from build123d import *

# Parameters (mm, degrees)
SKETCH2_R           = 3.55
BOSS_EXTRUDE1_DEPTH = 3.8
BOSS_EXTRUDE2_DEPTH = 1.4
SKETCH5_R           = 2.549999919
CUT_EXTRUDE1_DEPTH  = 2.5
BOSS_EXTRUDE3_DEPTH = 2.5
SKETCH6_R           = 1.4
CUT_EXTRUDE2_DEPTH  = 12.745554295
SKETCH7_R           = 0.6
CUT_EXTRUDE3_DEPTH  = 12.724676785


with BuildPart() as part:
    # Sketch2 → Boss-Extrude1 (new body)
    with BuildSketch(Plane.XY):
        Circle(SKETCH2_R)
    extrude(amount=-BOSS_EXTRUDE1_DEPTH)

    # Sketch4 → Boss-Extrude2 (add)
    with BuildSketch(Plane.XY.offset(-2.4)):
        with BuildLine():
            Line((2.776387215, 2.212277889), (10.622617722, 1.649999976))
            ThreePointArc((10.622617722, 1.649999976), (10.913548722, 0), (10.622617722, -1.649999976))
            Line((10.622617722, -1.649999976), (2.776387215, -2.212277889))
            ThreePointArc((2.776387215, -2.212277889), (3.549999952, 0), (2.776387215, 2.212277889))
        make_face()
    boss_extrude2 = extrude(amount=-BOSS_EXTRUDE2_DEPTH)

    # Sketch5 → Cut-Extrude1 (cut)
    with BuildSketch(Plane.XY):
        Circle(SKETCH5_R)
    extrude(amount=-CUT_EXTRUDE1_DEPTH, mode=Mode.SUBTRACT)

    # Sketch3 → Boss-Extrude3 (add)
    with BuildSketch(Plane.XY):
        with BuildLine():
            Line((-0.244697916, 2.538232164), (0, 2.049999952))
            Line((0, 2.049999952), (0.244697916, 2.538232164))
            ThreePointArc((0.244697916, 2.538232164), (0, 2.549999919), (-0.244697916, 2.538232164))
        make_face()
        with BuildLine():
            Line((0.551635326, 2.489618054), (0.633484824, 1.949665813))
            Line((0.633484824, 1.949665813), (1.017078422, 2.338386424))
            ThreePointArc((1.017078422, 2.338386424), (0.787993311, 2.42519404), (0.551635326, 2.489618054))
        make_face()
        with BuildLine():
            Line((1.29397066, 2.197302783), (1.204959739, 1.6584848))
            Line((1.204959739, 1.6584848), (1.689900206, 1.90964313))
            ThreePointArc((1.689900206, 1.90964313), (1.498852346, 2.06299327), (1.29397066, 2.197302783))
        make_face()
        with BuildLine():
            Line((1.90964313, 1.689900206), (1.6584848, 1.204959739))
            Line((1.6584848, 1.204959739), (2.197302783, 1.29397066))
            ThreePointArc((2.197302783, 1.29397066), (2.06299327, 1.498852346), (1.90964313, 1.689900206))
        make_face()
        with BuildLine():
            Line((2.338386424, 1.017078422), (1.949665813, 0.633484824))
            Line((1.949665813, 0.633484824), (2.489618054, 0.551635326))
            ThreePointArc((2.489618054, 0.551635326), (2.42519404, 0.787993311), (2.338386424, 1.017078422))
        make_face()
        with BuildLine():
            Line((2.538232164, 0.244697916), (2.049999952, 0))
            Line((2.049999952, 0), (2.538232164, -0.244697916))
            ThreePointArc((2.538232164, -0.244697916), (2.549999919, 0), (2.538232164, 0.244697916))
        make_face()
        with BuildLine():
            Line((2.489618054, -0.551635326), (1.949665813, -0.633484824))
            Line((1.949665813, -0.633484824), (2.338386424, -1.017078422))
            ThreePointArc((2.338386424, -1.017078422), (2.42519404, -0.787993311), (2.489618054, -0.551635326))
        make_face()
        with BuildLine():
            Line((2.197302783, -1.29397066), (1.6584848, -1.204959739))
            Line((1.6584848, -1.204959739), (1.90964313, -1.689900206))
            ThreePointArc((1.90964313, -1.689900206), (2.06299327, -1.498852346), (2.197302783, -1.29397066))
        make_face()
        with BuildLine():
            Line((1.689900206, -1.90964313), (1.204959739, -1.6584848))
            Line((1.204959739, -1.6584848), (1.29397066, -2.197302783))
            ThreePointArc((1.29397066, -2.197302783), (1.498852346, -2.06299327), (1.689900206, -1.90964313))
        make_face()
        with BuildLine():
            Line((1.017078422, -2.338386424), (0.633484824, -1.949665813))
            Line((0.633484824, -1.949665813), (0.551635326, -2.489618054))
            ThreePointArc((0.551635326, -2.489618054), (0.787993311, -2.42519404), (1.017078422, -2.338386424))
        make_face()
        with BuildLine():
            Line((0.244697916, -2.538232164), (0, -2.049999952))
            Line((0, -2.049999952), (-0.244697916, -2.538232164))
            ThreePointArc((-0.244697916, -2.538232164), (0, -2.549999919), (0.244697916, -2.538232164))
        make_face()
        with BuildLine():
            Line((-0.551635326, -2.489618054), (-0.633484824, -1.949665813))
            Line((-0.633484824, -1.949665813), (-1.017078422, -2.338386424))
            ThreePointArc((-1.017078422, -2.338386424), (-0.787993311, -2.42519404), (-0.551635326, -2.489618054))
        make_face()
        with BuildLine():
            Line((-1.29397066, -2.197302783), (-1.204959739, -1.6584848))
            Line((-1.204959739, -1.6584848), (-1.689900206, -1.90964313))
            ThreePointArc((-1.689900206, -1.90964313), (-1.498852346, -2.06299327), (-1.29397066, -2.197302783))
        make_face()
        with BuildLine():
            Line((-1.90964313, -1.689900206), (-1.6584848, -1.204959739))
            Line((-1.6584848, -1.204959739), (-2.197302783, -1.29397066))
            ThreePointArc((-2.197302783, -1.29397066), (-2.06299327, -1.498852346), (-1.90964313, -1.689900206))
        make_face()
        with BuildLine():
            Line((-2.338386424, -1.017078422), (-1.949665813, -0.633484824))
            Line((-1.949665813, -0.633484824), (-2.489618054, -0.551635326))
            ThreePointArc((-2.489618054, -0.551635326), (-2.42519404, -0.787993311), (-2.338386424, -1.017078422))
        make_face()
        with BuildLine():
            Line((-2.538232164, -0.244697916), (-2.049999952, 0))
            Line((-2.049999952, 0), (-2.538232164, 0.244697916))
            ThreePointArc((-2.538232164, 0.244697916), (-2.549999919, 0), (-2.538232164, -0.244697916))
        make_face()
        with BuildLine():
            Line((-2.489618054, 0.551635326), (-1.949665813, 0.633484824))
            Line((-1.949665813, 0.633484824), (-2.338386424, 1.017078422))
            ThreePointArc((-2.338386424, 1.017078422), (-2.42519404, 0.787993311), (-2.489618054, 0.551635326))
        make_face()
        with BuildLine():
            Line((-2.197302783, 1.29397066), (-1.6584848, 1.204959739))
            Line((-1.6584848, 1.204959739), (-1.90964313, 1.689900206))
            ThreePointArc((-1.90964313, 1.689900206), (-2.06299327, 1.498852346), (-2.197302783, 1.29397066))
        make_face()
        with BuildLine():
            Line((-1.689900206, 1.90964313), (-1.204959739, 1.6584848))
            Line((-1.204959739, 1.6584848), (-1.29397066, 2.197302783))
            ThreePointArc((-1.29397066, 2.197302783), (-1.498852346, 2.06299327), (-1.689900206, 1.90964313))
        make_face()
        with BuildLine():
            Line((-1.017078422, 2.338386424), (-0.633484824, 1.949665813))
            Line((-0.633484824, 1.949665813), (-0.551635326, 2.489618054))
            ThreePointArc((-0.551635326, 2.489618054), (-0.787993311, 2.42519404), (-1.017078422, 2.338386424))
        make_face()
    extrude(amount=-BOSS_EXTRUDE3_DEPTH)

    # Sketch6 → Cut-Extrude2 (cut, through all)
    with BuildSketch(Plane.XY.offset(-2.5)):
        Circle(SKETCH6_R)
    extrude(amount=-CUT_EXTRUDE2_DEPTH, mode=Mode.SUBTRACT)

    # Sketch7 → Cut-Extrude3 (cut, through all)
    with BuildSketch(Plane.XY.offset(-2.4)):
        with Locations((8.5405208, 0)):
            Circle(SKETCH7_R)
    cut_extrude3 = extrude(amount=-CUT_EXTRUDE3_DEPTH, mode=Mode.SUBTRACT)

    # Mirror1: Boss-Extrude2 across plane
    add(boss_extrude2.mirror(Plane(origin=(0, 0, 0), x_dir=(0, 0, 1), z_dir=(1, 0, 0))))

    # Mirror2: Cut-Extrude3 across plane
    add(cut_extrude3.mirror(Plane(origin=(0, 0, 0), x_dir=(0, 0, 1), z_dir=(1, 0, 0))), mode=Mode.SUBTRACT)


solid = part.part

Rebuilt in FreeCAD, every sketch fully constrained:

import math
import FreeCAD as App
import Part
import Sketcher

V = App.Vector

doc = App.newDocument("Part")
body = doc.addObject("PartDesign::Body", "Body")

# Sketch on XY plane
sketch1 = body.newObject("Sketcher::SketchObject", "Sketch")
sketch1.AttachmentSupport = (doc.getObject("XY_Plane"), [""])
sketch1.MapMode = "FlatFace"
sketch1.addGeometry(Part.Circle(V(0, 0, 0), V(0, 0, 1), 3.5), False)
sketch1.addConstraint([
    Sketcher.Constraint("Coincident", 0, 3, -1, 1),
    Sketcher.Constraint("Diameter", 0, 7.1),
])
pad1 = body.newObject("PartDesign::Pad", "Pad")
pad1.Profile = sketch1
pad1.Length = 3.8
pad1.Reversed = True

# Sketch on XY plane
sketch2 = body.newObject("Sketcher::SketchObject", "Sketch001")
sketch2.AttachmentSupport = (doc.getObject("XY_Plane"), [""])
sketch2.MapMode = "FlatFace"
sketch2.AttachmentOffset = App.Placement(V(0, 0, -2.4), App.Rotation())
sketch2.addGeometry([
    Part.LineSegment(V(10.6, 1.6, 0), V(2.8, 2.2, 0)),
    Part.ArcOfCircle(Part.Circle(V(0, 0, 0), V(0, 0, 1), 3.5), math.radians(-39), math.radians(39)),
    Part.LineSegment(V(2.8, -2.2, 0), V(10.6, -1.6, 0)),
    Part.ArcOfCircle(Part.Circle(V(6.1, 0, 0), V(0, 0, 1), 4.8), math.radians(-20), math.radians(20)),
], False)
sketch2.addConstraint([
    Sketcher.Constraint("Coincident", 0, 2, 1, 2),
    Sketcher.Constraint("Coincident", 1, 1, 2, 1),
    Sketcher.Constraint("Coincident", 2, 2, 3, 1),
    Sketcher.Constraint("Coincident", 3, 2, 0, 1),
    Sketcher.Constraint("Coincident", 1, 3, -1, 1),
    Sketcher.Constraint("Symmetric", 2, 2, 3, 2, -1),
    Sketcher.Constraint("Vertical", 0, 2, 1, 1),
    Sketcher.Constraint("Radius", 1, 3.55),
    Sketcher.Constraint("DistanceY", 2, 2, 3, 2, 3.3),
    Sketcher.Constraint("Radius", 3, 4.82441),
    Sketcher.Constraint("Distance", 0, 7.866352),
    Sketcher.Constraint("DistanceX", -1, 1, 3, 3, 6.089139),
])
pad2 = body.newObject("PartDesign::Pad", "Pad001")
pad2.Profile = sketch2
pad2.Length = 1.4
pad2.Reversed = True

# Sketch on XY plane
sketch3 = body.newObject("Sketcher::SketchObject", "Sketch002")
sketch3.AttachmentSupport = (doc.getObject("XY_Plane"), [""])
sketch3.MapMode = "FlatFace"
sketch3.addGeometry(Part.Circle(V(0, 0, 0), V(0, 0, 1), 2.5), False)
sketch3.addConstraint([
    Sketcher.Constraint("Coincident", 0, 3, -1, 1),
    Sketcher.Constraint("Diameter", 0, 5.1),
])
pocket1 = body.newObject("PartDesign::Pocket", "Pocket")
pocket1.Profile = sketch3
pocket1.Length = 2.5

# Sketch on XY plane
sketch4 = body.newObject("Sketcher::SketchObject", "Sketch003")
sketch4.AttachmentSupport = (doc.getObject("XY_Plane"), [""])
sketch4.MapMode = "FlatFace"
sketch4.addGeometry([
    Part.LineSegment(V(-0.24, 2.54, 0), V(0, 2.05, 0)),  # 0
    Part.LineSegment(V(0, 2.05, 0), V(0.24, 2.54, 0)),  # 1
    Part.ArcOfCircle(Part.Circle(V(0, 0, 0), V(0, 0, 1), 2.55), math.radians(84.49), math.radians(95.51)),  # 2
    Part.LineSegment(V(0.55, 2.49, 0), V(0.63, 1.95, 0)),  # 3
    Part.LineSegment(V(0.63, 1.95, 0), V(1.02, 2.34, 0)),  # 4
    Part.ArcOfCircle(Part.Circle(V(0, 0, 0), V(0, 0, 1), 2.55), math.radians(66.49), math.radians(77.51)),  # 5
    Part.LineSegment(V(1.29, 2.2, 0), V(1.2, 1.66, 0)),  # 6
    Part.LineSegment(V(1.2, 1.66, 0), V(1.69, 1.91, 0)),  # 7
    Part.ArcOfCircle(Part.Circle(V(0, 0, 0), V(0, 0, 1), 2.55), math.radians(48.49), math.radians(59.51)),  # 8
    Part.LineSegment(V(1.91, 1.69, 0), V(1.66, 1.2, 0)),  # 9
    Part.LineSegment(V(1.66, 1.2, 0), V(2.2, 1.29, 0)),  # 10
    Part.ArcOfCircle(Part.Circle(V(0, 0, 0), V(0, 0, 1), 2.55), math.radians(30.49), math.radians(41.51)),  # 11
    Part.LineSegment(V(2.34, 1.02, 0), V(1.95, 0.63, 0)),  # 12
    Part.LineSegment(V(1.95, 0.63, 0), V(2.49, 0.55, 0)),  # 13
    Part.ArcOfCircle(Part.Circle(V(0, 0, 0), V(0, 0, 1), 2.55), math.radians(12.49), math.radians(23.51)),  # 14
    Part.LineSegment(V(2.54, 0.24, 0), V(2.05, 0, 0)),  # 15
    Part.LineSegment(V(2.05, 0, 0), V(2.54, -0.24, 0)),  # 16
    Part.ArcOfCircle(Part.Circle(V(0, 0, 0), V(0, 0, 1), 2.55), math.radians(-5.51), math.radians(5.51)),  # 17
    Part.LineSegment(V(2.49, -0.55, 0), V(1.95, -0.63, 0)),  # 18
    Part.LineSegment(V(1.95, -0.63, 0), V(2.34, -1.02, 0)),  # 19
    Part.ArcOfCircle(Part.Circle(V(0, 0, 0), V(0, 0, 1), 2.55), math.radians(-23.51), math.radians(-12.49)),  # 20
    Part.LineSegment(V(2.2, -1.29, 0), V(1.66, -1.2, 0)),  # 21
    Part.LineSegment(V(1.66, -1.2, 0), V(1.91, -1.69, 0)),  # 22
    Part.ArcOfCircle(Part.Circle(V(0, 0, 0), V(0, 0, 1), 2.55), math.radians(-41.51), math.radians(-30.49)),  # 23
    Part.LineSegment(V(1.69, -1.91, 0), V(1.2, -1.66, 0)),  # 24
    Part.LineSegment(V(1.2, -1.66, 0), V(1.29, -2.2, 0)),  # 25
    Part.ArcOfCircle(Part.Circle(V(0, 0, 0), V(0, 0, 1), 2.55), math.radians(-59.51), math.radians(-48.49)),  # 26
    Part.LineSegment(V(1.02, -2.34, 0), V(0.63, -1.95, 0)),  # 27
    Part.LineSegment(V(0.63, -1.95, 0), V(0.55, -2.49, 0)),  # 28
    Part.ArcOfCircle(Part.Circle(V(0, 0, 0), V(0, 0, 1), 2.55), math.radians(-77.51), math.radians(-66.49)),  # 29
    Part.LineSegment(V(0.24, -2.54, 0), V(0, -2.05, 0)),  # 30
    Part.LineSegment(V(0, -2.05, 0), V(-0.24, -2.54, 0)),  # 31
    Part.ArcOfCircle(Part.Circle(V(0, 0, 0), V(0, 0, 1), 2.55), math.radians(-95.51), math.radians(-84.49)),  # 32
    Part.LineSegment(V(-0.55, -2.49, 0), V(-0.63, -1.95, 0)),  # 33
    Part.LineSegment(V(-0.63, -1.95, 0), V(-1.02, -2.34, 0)),  # 34
    Part.ArcOfCircle(Part.Circle(V(0, 0, 0), V(0, 0, 1), 2.55), math.radians(-113.51), math.radians(-102.49)),  # 35
    Part.LineSegment(V(-1.29, -2.2, 0), V(-1.2, -1.66, 0)),  # 36
    Part.LineSegment(V(-1.2, -1.66, 0), V(-1.69, -1.91, 0)),  # 37
    Part.ArcOfCircle(Part.Circle(V(0, 0, 0), V(0, 0, 1), 2.55), math.radians(-131.51), math.radians(-120.49)),  # 38
    Part.LineSegment(V(-1.91, -1.69, 0), V(-1.66, -1.2, 0)),  # 39
    Part.LineSegment(V(-1.66, -1.2, 0), V(-2.2, -1.29, 0)),  # 40
    Part.ArcOfCircle(Part.Circle(V(0, 0, 0), V(0, 0, 1), 2.55), math.radians(-149.51), math.radians(-138.49)),  # 41
    Part.LineSegment(V(-2.34, -1.02, 0), V(-1.95, -0.63, 0)),  # 42
    Part.LineSegment(V(-1.95, -0.63, 0), V(-2.49, -0.55, 0)),  # 43
    Part.ArcOfCircle(Part.Circle(V(0, 0, 0), V(0, 0, 1), 2.55), math.radians(-167.51), math.radians(-156.49)),  # 44
    Part.LineSegment(V(-2.54, -0.24, 0), V(-2.05, 0, 0)),  # 45
    Part.LineSegment(V(-2.05, 0, 0), V(-2.54, 0.24, 0)),  # 46
    Part.ArcOfCircle(Part.Circle(V(0, 0, 0), V(0, 0, 1), 2.55), math.radians(174.49), math.radians(185.51)),  # 47
    Part.LineSegment(V(-2.49, 0.55, 0), V(-1.95, 0.63, 0)),  # 48
    Part.LineSegment(V(-1.95, 0.63, 0), V(-2.34, 1.02, 0)),  # 49
    Part.ArcOfCircle(Part.Circle(V(0, 0, 0), V(0, 0, 1), 2.55), math.radians(156.49), math.radians(167.51)),  # 50
    Part.LineSegment(V(-2.2, 1.29, 0), V(-1.66, 1.2, 0)),  # 51
    Part.LineSegment(V(-1.66, 1.2, 0), V(-1.91, 1.69, 0)),  # 52
    Part.ArcOfCircle(Part.Circle(V(0, 0, 0), V(0, 0, 1), 2.55), math.radians(138.49), math.radians(149.51)),  # 53
    Part.LineSegment(V(-1.69, 1.91, 0), V(-1.2, 1.66, 0)),  # 54
    Part.LineSegment(V(-1.2, 1.66, 0), V(-1.29, 2.2, 0)),  # 55
    Part.ArcOfCircle(Part.Circle(V(0, 0, 0), V(0, 0, 1), 2.55), math.radians(120.49), math.radians(131.51)),  # 56
    Part.LineSegment(V(-1.02, 2.34, 0), V(-0.63, 1.95, 0)),  # 57
    Part.LineSegment(V(-0.63, 1.95, 0), V(-0.55, 2.49, 0)),  # 58
    Part.ArcOfCircle(Part.Circle(V(0, 0, 0), V(0, 0, 1), 2.55), math.radians(102.49), math.radians(113.51)),  # 59
], False)
sketch4.addConstraint([
    Sketcher.Constraint("Coincident", 0, 2, 1, 1),
    Sketcher.Constraint("Coincident", 1, 2, 2, 1),
    Sketcher.Constraint("Coincident", 2, 2, 0, 1),
    Sketcher.Constraint("Coincident", 3, 2, 4, 1),
    Sketcher.Constraint("Coincident", 4, 2, 5, 1),
    Sketcher.Constraint("Coincident", 5, 2, 3, 1),
    Sketcher.Constraint("Coincident", 6, 2, 7, 1),
    Sketcher.Constraint("Coincident", 7, 2, 8, 1),
    Sketcher.Constraint("Coincident", 8, 2, 6, 1),
    Sketcher.Constraint("Coincident", 9, 2, 10, 1),
    Sketcher.Constraint("Coincident", 10, 2, 11, 1),
    Sketcher.Constraint("Coincident", 11, 2, 9, 1),
    Sketcher.Constraint("Coincident", 12, 2, 13, 1),
    Sketcher.Constraint("Coincident", 13, 2, 14, 1),
    Sketcher.Constraint("Coincident", 14, 2, 12, 1),
    Sketcher.Constraint("Coincident", 15, 2, 16, 1),
    Sketcher.Constraint("Coincident", 16, 2, 17, 1),
    Sketcher.Constraint("Coincident", 17, 2, 15, 1),
    Sketcher.Constraint("Coincident", 18, 2, 19, 1),
    Sketcher.Constraint("Coincident", 19, 2, 20, 1),
    Sketcher.Constraint("Coincident", 20, 2, 18, 1),
    Sketcher.Constraint("Coincident", 21, 2, 22, 1),
    Sketcher.Constraint("Coincident", 22, 2, 23, 1),
    Sketcher.Constraint("Coincident", 23, 2, 21, 1),
    Sketcher.Constraint("Coincident", 24, 2, 25, 1),
    Sketcher.Constraint("Coincident", 25, 2, 26, 1),
    Sketcher.Constraint("Coincident", 26, 2, 24, 1),
    Sketcher.Constraint("Coincident", 27, 2, 28, 1),
    Sketcher.Constraint("Coincident", 28, 2, 29, 1),
    Sketcher.Constraint("Coincident", 29, 2, 27, 1),
    Sketcher.Constraint("Coincident", 30, 2, 31, 1),
    Sketcher.Constraint("Coincident", 31, 2, 32, 1),
    Sketcher.Constraint("Coincident", 32, 2, 30, 1),
    Sketcher.Constraint("Coincident", 33, 2, 34, 1),
    Sketcher.Constraint("Coincident", 34, 2, 35, 1),
    Sketcher.Constraint("Coincident", 35, 2, 33, 1),
    Sketcher.Constraint("Coincident", 36, 2, 37, 1),
    Sketcher.Constraint("Coincident", 37, 2, 38, 1),
    Sketcher.Constraint("Coincident", 38, 2, 36, 1),
    Sketcher.Constraint("Coincident", 39, 2, 40, 1),
    Sketcher.Constraint("Coincident", 40, 2, 41, 1),
    Sketcher.Constraint("Coincident", 41, 2, 39, 1),
    Sketcher.Constraint("Coincident", 42, 2, 43, 1),
    Sketcher.Constraint("Coincident", 43, 2, 44, 1),
    Sketcher.Constraint("Coincident", 44, 2, 42, 1),
    Sketcher.Constraint("Coincident", 45, 2, 46, 1),
    Sketcher.Constraint("Coincident", 46, 2, 47, 1),
    Sketcher.Constraint("Coincident", 47, 2, 45, 1),
    Sketcher.Constraint("Coincident", 48, 2, 49, 1),
    Sketcher.Constraint("Coincident", 49, 2, 50, 1),
    Sketcher.Constraint("Coincident", 50, 2, 48, 1),
    Sketcher.Constraint("Coincident", 51, 2, 52, 1),
    Sketcher.Constraint("Coincident", 52, 2, 53, 1),
    Sketcher.Constraint("Coincident", 53, 2, 51, 1),
    Sketcher.Constraint("Coincident", 54, 2, 55, 1),
    Sketcher.Constraint("Coincident", 55, 2, 56, 1),
    Sketcher.Constraint("Coincident", 56, 2, 54, 1),
    Sketcher.Constraint("Coincident", 57, 2, 58, 1),
    Sketcher.Constraint("Coincident", 58, 2, 59, 1),
    Sketcher.Constraint("Coincident", 59, 2, 57, 1),
    Sketcher.Constraint("Coincident", 2, 3, -1, 1),
    Sketcher.Constraint("Coincident", 5, 3, -1, 1),
    Sketcher.Constraint("Coincident", 8, 3, -1, 1),
    Sketcher.Constraint("Coincident", 11, 3, -1, 1),
    Sketcher.Constraint("Coincident", 14, 3, -1, 1),
    Sketcher.Constraint("Coincident", 17, 3, -1, 1),
    Sketcher.Constraint("Coincident", 20, 3, -1, 1),
    Sketcher.Constraint("Coincident", 23, 3, -1, 1),
    Sketcher.Constraint("Coincident", 26, 3, -1, 1),
    Sketcher.Constraint("Coincident", 29, 3, -1, 1),
    Sketcher.Constraint("Coincident", 32, 3, -1, 1),
    Sketcher.Constraint("Coincident", 35, 3, -1, 1),
    Sketcher.Constraint("Coincident", 38, 3, -1, 1),
    Sketcher.Constraint("Coincident", 41, 3, -1, 1),
    Sketcher.Constraint("Coincident", 44, 3, -1, 1),
    Sketcher.Constraint("Coincident", 47, 3, -1, 1),
    Sketcher.Constraint("Coincident", 50, 3, -1, 1),
    Sketcher.Constraint("Coincident", 53, 3, -1, 1),
    Sketcher.Constraint("Coincident", 56, 3, -1, 1),
    Sketcher.Constraint("Coincident", 59, 3, -1, 1),
    Sketcher.Constraint("Equal", 2, 5),
    Sketcher.Constraint("Equal", 5, 8),
    Sketcher.Constraint("Equal", 8, 11),
    Sketcher.Constraint("Equal", 11, 14),
    Sketcher.Constraint("Equal", 14, 17),
    Sketcher.Constraint("Equal", 17, 20),
    Sketcher.Constraint("Equal", 20, 23),
    Sketcher.Constraint("Equal", 23, 26),
    Sketcher.Constraint("Equal", 26, 29),
    Sketcher.Constraint("Equal", 29, 32),
    Sketcher.Constraint("Equal", 32, 35),
    Sketcher.Constraint("Equal", 35, 38),
    Sketcher.Constraint("Equal", 38, 41),
    Sketcher.Constraint("Equal", 41, 44),
    Sketcher.Constraint("Equal", 44, 47),
    Sketcher.Constraint("Equal", 47, 50),
    Sketcher.Constraint("Equal", 50, 53),
    Sketcher.Constraint("Equal", 53, 56),
    Sketcher.Constraint("Equal", 56, 59),
    Sketcher.Constraint("Symmetric", 0, 2, 30, 2, -1, 1),
    Sketcher.Constraint("Symmetric", 3, 2, 33, 2, -1, 1),
    Sketcher.Constraint("Symmetric", 6, 2, 36, 2, -1, 1),
    Sketcher.Constraint("Symmetric", 9, 2, 39, 2, -1, 1),
    Sketcher.Constraint("Symmetric", 12, 2, 42, 2, -1, 1),
    Sketcher.Constraint("Symmetric", 15, 2, 45, 2, -1, 1),
    Sketcher.Constraint("Symmetric", 18, 2, 48, 2, -1, 1),
    Sketcher.Constraint("Symmetric", 21, 2, 51, 2, -1, 1),
    Sketcher.Constraint("Symmetric", 24, 2, 54, 2, -1, 1),
    Sketcher.Constraint("Symmetric", 27, 2, 57, 2, -1, 1),
    Sketcher.Constraint("Symmetric", 27, 2, 33, 2, -2),
    Sketcher.Constraint("Symmetric", 24, 2, 36, 2, -2),
    Sketcher.Constraint("Symmetric", 21, 2, 39, 2, -2),
    Sketcher.Constraint("Symmetric", 18, 2, 42, 2, -2),
    Sketcher.Constraint("PointOnObject", 0, 2, -2),
    Sketcher.Constraint("PointOnObject", 15, 2, -1),
    Sketcher.Constraint("Perpendicular", 0, 15),
    Sketcher.Constraint("Perpendicular", 1, 16),
    Sketcher.Constraint("Perpendicular", 3, 18),
    Sketcher.Constraint("Perpendicular", 4, 19),
    Sketcher.Constraint("Perpendicular", 6, 21),
    Sketcher.Constraint("Perpendicular", 7, 22),
    Sketcher.Constraint("Perpendicular", 9, 24),
    Sketcher.Constraint("Perpendicular", 10, 25),
    Sketcher.Constraint("Perpendicular", 12, 27),
    Sketcher.Constraint("Perpendicular", 13, 28),
    Sketcher.Constraint("Perpendicular", 15, 30),
    Sketcher.Constraint("Perpendicular", 16, 31),
    Sketcher.Constraint("Perpendicular", 18, 33),
    Sketcher.Constraint("Perpendicular", 19, 34),
    Sketcher.Constraint("Perpendicular", 21, 36),
    Sketcher.Constraint("Perpendicular", 22, 37),
    Sketcher.Constraint("Perpendicular", 24, 39),
    Sketcher.Constraint("Perpendicular", 25, 40),
    Sketcher.Constraint("Perpendicular", 27, 42),
    Sketcher.Constraint("Perpendicular", 28, 43),
    Sketcher.Constraint("Perpendicular", 30, 45),
    Sketcher.Constraint("Perpendicular", 31, 46),
    Sketcher.Constraint("Perpendicular", 33, 48),
    Sketcher.Constraint("Perpendicular", 34, 49),
    Sketcher.Constraint("Perpendicular", 36, 51),
    Sketcher.Constraint("Perpendicular", 37, 52),
    Sketcher.Constraint("Perpendicular", 39, 54),
    Sketcher.Constraint("Perpendicular", 40, 55),
    Sketcher.Constraint("Perpendicular", 42, 57),
    Sketcher.Constraint("Perpendicular", 43, 58),
    Sketcher.Constraint("Horizontal", 1, 2, 2, 2),
    Sketcher.Constraint("Horizontal", 29, 2, 34, 2),
    Sketcher.Constraint("Horizontal", 28, 2, 35, 2),
    Sketcher.Constraint("Horizontal", 26, 2, 37, 2),
    Sketcher.Constraint("Horizontal", 25, 2, 38, 2),
    Sketcher.Constraint("Equal", 1, 3),
    Sketcher.Constraint("Equal", 3, 4),
    Sketcher.Constraint("Equal", 4, 6),
    Sketcher.Constraint("Equal", 6, 7),
    Sketcher.Constraint("Equal", 7, 9),
    Sketcher.Constraint("Equal", 9, 10),
    Sketcher.Constraint("Equal", 10, 12),
    Sketcher.Constraint("Equal", 12, 13),
    Sketcher.Constraint("Equal", 13, 15),
    Sketcher.Constraint("Radius", 2, 2.55),
    Sketcher.Constraint("DistanceY", -1, 1, 0, 2, 2.05),
    Sketcher.Constraint("DistanceX", -1, 1, 7, 2, 1.6899),
    Sketcher.Constraint("Distance", 0, 0.546121),
    Sketcher.Constraint("DistanceX", -1, 1, 4, 2, 1.017078),
    Sketcher.Constraint("DistanceY", -1, 1, 5, 2, 2.489618),
    Sketcher.Constraint("DistanceX", -1, 1, 6, 2, 1.20496),
])
pad3 = body.newObject("PartDesign::Pad", "Pad002")
pad3.Profile = sketch4
pad3.Length = 2.5
pad3.Reversed = True

# Sketch on XY plane
sketch5 = body.newObject("Sketcher::SketchObject", "Sketch004")
sketch5.AttachmentSupport = (doc.getObject("XY_Plane"), [""])
sketch5.MapMode = "FlatFace"
sketch5.AttachmentOffset = App.Placement(V(0, 0, -2.5), App.Rotation())
sketch5.addGeometry(Part.Circle(V(0, 0, 0), V(0, 0, 1), 1.4), False)
sketch5.addConstraint([
    Sketcher.Constraint("Coincident", 0, 3, -1, 1),
    Sketcher.Constraint("Diameter", 0, 2.8),
])
pocket2 = body.newObject("PartDesign::Pocket", "Pocket001")
pocket2.Profile = sketch5
pocket2.Type = "ThroughAll"

# Sketch on XY plane
sketch6 = body.newObject("Sketcher::SketchObject", "Sketch005")
sketch6.AttachmentSupport = (doc.getObject("XY_Plane"), [""])
sketch6.MapMode = "FlatFace"
sketch6.AttachmentOffset = App.Placement(V(0, 0, -2.4), App.Rotation())
sketch6.addGeometry(Part.Circle(V(8.5, 0, 0), V(0, 0, 1), 0.6), False)
sketch6.addConstraint([
    Sketcher.Constraint("PointOnObject", 0, 3, -1),
    Sketcher.Constraint("Diameter", 0, 1.2),
    Sketcher.Constraint("DistanceX", -1, 1, 0, 3, 8.540521),
])
pocket3 = body.newObject("PartDesign::Pocket", "Pocket002")
pocket3.Profile = sketch6
pocket3.Type = "ThroughAll"
doc.recompute()

mirrored = body.newObject("PartDesign::Mirrored", "Mirrored")
mirrored.Originals = [pad2]
mirrored.MirrorPlane = (doc.getObject("YZ_Plane"), [""])
body.Tip = mirrored
doc.recompute()

mirrored2 = body.newObject("PartDesign::Mirrored", "Mirrored001")
mirrored2.Originals = [pocket3]
mirrored2.MirrorPlane = (doc.getObject("YZ_Plane"), [""])
body.Tip = mirrored2

doc.recompute()
